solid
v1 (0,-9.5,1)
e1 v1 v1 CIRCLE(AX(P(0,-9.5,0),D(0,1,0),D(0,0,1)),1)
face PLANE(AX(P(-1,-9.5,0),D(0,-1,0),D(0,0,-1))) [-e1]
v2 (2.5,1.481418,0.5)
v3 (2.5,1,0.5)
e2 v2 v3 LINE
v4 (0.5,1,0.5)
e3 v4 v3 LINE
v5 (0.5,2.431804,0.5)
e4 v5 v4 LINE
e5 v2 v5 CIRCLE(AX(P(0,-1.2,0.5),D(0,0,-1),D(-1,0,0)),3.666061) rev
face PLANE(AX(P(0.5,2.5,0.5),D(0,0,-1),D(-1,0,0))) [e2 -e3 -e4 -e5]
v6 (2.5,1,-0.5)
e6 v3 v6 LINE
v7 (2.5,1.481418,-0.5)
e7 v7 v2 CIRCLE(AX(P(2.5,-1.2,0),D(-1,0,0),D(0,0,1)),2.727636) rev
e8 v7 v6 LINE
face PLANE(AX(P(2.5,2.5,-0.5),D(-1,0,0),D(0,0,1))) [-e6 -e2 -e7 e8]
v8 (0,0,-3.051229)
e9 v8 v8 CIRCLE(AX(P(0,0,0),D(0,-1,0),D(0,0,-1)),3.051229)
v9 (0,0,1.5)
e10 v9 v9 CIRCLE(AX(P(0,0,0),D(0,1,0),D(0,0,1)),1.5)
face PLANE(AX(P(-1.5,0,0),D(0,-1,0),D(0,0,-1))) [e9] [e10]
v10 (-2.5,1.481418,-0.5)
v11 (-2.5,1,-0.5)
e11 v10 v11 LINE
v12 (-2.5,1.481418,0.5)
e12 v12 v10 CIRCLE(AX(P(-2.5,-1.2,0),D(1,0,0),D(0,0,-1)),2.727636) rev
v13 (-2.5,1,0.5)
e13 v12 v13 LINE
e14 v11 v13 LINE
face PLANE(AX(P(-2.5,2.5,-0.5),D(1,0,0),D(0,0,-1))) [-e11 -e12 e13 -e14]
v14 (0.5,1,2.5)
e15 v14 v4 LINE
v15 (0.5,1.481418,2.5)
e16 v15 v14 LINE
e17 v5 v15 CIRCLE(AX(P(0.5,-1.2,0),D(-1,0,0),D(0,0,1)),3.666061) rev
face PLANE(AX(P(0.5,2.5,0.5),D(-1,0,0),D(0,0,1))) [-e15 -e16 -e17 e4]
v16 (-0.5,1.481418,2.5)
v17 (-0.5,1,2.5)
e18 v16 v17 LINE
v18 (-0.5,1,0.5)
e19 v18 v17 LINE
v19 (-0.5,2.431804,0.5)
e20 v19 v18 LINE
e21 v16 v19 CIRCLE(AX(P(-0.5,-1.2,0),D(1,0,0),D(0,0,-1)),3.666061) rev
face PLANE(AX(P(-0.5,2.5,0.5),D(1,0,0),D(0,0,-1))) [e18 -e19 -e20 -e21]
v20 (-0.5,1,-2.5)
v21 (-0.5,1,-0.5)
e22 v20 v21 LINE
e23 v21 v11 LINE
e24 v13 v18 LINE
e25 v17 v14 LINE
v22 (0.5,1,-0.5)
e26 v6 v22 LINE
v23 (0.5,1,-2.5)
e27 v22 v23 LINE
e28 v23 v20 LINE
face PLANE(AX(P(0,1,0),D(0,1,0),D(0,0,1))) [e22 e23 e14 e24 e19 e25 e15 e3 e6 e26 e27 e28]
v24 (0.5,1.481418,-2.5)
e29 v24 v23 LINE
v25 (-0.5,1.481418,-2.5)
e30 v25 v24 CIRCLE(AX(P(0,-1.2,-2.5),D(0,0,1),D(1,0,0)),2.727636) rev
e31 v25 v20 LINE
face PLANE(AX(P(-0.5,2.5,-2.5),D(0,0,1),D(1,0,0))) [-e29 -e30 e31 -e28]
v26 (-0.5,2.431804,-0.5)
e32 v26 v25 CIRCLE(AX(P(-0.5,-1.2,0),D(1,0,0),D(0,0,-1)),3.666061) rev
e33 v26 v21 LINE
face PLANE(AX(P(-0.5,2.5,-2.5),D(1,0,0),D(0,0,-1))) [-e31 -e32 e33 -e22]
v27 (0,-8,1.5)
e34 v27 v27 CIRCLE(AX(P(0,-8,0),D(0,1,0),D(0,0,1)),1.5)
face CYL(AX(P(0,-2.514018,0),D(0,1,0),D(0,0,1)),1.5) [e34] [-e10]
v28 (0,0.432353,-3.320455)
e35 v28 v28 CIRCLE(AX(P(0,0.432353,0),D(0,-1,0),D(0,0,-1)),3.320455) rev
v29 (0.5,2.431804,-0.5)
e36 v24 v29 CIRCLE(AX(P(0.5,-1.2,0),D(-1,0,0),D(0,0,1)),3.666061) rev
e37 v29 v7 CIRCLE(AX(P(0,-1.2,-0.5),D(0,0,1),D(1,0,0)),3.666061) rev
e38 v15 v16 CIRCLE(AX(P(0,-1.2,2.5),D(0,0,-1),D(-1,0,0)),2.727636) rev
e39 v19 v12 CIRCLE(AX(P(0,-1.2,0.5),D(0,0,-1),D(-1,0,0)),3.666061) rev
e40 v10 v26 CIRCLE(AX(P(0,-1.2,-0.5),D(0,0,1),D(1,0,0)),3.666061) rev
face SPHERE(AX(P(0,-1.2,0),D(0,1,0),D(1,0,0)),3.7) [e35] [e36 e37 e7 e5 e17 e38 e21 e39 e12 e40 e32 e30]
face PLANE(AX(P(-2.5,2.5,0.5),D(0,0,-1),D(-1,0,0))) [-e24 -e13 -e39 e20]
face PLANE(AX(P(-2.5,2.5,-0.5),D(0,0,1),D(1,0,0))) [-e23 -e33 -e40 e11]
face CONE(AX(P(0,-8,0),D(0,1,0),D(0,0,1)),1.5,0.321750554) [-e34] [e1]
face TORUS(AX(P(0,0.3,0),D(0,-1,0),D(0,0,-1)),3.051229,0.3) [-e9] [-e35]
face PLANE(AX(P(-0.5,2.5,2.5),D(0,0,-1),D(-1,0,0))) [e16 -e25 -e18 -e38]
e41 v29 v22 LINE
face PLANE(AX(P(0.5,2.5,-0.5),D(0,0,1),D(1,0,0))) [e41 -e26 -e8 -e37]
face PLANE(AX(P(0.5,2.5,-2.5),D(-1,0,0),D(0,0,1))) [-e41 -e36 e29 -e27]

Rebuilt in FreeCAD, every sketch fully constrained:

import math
import FreeCAD as App
import Part
import Sketcher

V = App.Vector
Q = App.Units.Quantity


def edges_at(feature, points):
    """Names of the edges that pass closest to the given points."""
    edges = feature.Shape.Edges
    near = lambda p: min(range(len(edges)), key=lambda i: edges[i].distToShape(Part.Vertex(*p))[0])
    return sorted({f"Edge{near(p) + 1}" for p in points})

doc = App.newDocument("Part")
body = doc.addObject("PartDesign::Body", "Body")

# Sketch on XY plane
sketch1 = body.newObject("Sketcher::SketchObject", "Sketch")
sketch1.AttachmentSupport = (doc.getObject("XY_Plane"), [""])
sketch1.MapMode = "FlatFace"
sketch1.addGeometry([
    Part.LineSegment(V(-1.5, 0, 0), V(-1.5, -8, 0)),  # 0
    Part.LineSegment(V(-1.5, -8, 0), V(-1, -9.5, 0)),  # 1
    Part.LineSegment(V(-1, -9.5, 0), V(0, -9.5, 0)),  # 2
    Part.LineSegment(V(0, -9.5, 0), V(0, 2.5, 0)),  # 3
    Part.ArcOfCircle(Part.Circle(V(0, -1.2, 0), V(0, 0, 1), 3.7), math.radians(90), math.radians(161.075356)),  # 4
    Part.LineSegment(V(-3.5, 0, 0), V(-1.5, 0, 0)),  # 5
], False)
sketch1.addConstraint([
    Sketcher.Constraint("Coincident", 0, 2, 1, 1),
    Sketcher.Constraint("Coincident", 1, 2, 2, 1),
    Sketcher.Constraint("Coincident", 2, 2, 3, 1),
    Sketcher.Constraint("Coincident", 3, 2, 4, 1),
    Sketcher.Constraint("Coincident", 4, 2, 5, 1),
    Sketcher.Constraint("Coincident", 5, 2, 0, 1),
    Sketcher.Constraint("Vertical", 0),
    Sketcher.Constraint("Horizontal", 2),
    Sketcher.Constraint("Vertical", 3),
    Sketcher.Constraint("Horizontal", 5),
    Sketcher.Constraint("PointOnObject", 4, 3, -2),
    Sketcher.Constraint("PointOnObject", 2, 2, -2),
    Sketcher.Constraint("PointOnObject", 4, 2, -1),
    Sketcher.Constraint("Radius", 4, Q("3.7 mm")),
    Sketcher.Constraint("DistanceX", 2, 1, 2, 2, Q("1 mm")),
    Sketcher.Constraint("DistanceX", 5, 1, 5, 2, Q("2 mm")),
    Sketcher.Constraint("DistanceY", 0, 2, 0, 1, Q("8 mm")),
    Sketcher.Constraint("DistanceY", 3, 1, 3, 2, Q("12 mm")),
    Sketcher.Constraint("DistanceY", 4, 3, -1, 1, Q("1.2 mm")),
])
revolution = body.newObject("PartDesign::Revolution", "Revolution")
revolution.Profile = sketch1
revolution.ReferenceAxis = (sketch1, ["V_Axis"])
revolution.Angle = 360
doc.recompute()

fillet = body.newObject("PartDesign::Fillet", "Fillet")
fillet.Base = (revolution, edges_at(revolution, [(0, 0, -3.5)]))
fillet.Radius = 0.3

# Sketch on XZ plane
sketch2 = body.newObject("Sketcher::SketchObject", "Sketch001")
sketch2.AttachmentSupport = (doc.getObject("XZ_Plane"), [""])
sketch2.MapMode = "FlatFace"
sketch2.AttachmentOffset = App.Placement(V(0, 0, -1), App.Rotation())
sketch2.addGeometry([
    Part.LineSegment(V(2.5, -0.5, 0), V(0.5, -0.5, 0)),  # 0
    Part.LineSegment(V(0.5, -0.5, 0), V(0.5, -2.5, 0)),  # 1
    Part.LineSegment(V(0.5, -2.5, 0), V(-0.5, -2.5, 0)),  # 2
    Part.LineSegment(V(-0.5, -2.5, 0), V(-0.5, -0.5, 0)),  # 3
    Part.LineSegment(V(-0.5, -0.5, 0), V(-2.5, -0.5, 0)),  # 4
    Part.LineSegment(V(-2.5, -0.5, 0), V(-2.5, 0.5, 0)),  # 5
    Part.LineSegment(V(-2.5, 0.5, 0), V(-0.5, 0.5, 0)),  # 6
    Part.LineSegment(V(-0.5, 0.5, 0), V(-0.5, 2.5, 0)),  # 7
    Part.LineSegment(V(-0.5, 2.5, 0), V(0.5, 2.5, 0)),  # 8
    Part.LineSegment(V(0.5, 2.5, 0), V(0.5, 0.5, 0)),  # 9
    Part.LineSegment(V(0.5, 0.5, 0), V(2.5, 0.5, 0)),  # 10
    Part.LineSegment(V(2.5, 0.5, 0), V(2.5, -0.5, 0)),  # 11
], False)
sketch2.addConstraint([
    Sketcher.Constraint("Coincident", 0, 2, 1, 1),
    Sketcher.Constraint("Coincident", 1, 2, 2, 1),
    Sketcher.Constraint("Coincident", 2, 2, 3, 1),
    Sketcher.Constraint("Coincident", 3, 2, 4, 1),
    Sketcher.Constraint("Coincident", 4, 2, 5, 1),
    Sketcher.Constraint("Coincident", 5, 2, 6, 1),
    Sketcher.Constraint("Coincident", 6, 2, 7, 1),
    Sketcher.Constraint("Coincident", 7, 2, 8, 1),
    Sketcher.Constraint("Coincident", 8, 2, 9, 1),
    Sketcher.Constraint("Coincident", 9, 2, 10, 1),
    Sketcher.Constraint("Coincident", 10, 2, 11, 1),
    Sketcher.Constraint("Coincident", 11, 2, 0, 1),
    Sketcher.Constraint("Horizontal", 0),
    Sketcher.Constraint("Vertical", 1),
    Sketcher.Constraint("Horizontal", 2),
    Sketcher.Constraint("Vertical", 3),
    Sketcher.Constraint("Horizontal", 4),
    Sketcher.Constraint("Vertical", 5),
    Sketcher.Constraint("Horizontal", 6),
    Sketcher.Constraint("Vertical", 7),
    Sketcher.Constraint("Horizontal", 8),
    Sketcher.Constraint("Vertical", 9),
    Sketcher.Constraint("Horizontal", 10),
    Sketcher.Constraint("Vertical", 11),
    Sketcher.Constraint("Symmetric", 0, 2, 6, 2, -1, 1),
    Sketcher.Constraint("Symmetric", 2, 2, 8, 2, -1, 1),
    Sketcher.Constraint("Symmetric", 4, 2, 10, 2, -1, 1),
    Sketcher.Constraint("Symmetric", 0, 2, 3, 2, -2),
    Sketcher.Constraint("Equal", 10, 1),
    Sketcher.Constraint("Equal", 8, 5),
    Sketcher.Constraint("DistanceX", 0, 2, 0, 1, Q("2 mm")),
    Sketcher.Constraint("DistanceX", 2, 2, 2, 1, Q("1 mm")),
])
pocket1 = body.newObject("PartDesign::Pocket", "Pocket")
pocket1.Profile = sketch2
pocket1.Type = "ThroughAll"

doc.recompute()
